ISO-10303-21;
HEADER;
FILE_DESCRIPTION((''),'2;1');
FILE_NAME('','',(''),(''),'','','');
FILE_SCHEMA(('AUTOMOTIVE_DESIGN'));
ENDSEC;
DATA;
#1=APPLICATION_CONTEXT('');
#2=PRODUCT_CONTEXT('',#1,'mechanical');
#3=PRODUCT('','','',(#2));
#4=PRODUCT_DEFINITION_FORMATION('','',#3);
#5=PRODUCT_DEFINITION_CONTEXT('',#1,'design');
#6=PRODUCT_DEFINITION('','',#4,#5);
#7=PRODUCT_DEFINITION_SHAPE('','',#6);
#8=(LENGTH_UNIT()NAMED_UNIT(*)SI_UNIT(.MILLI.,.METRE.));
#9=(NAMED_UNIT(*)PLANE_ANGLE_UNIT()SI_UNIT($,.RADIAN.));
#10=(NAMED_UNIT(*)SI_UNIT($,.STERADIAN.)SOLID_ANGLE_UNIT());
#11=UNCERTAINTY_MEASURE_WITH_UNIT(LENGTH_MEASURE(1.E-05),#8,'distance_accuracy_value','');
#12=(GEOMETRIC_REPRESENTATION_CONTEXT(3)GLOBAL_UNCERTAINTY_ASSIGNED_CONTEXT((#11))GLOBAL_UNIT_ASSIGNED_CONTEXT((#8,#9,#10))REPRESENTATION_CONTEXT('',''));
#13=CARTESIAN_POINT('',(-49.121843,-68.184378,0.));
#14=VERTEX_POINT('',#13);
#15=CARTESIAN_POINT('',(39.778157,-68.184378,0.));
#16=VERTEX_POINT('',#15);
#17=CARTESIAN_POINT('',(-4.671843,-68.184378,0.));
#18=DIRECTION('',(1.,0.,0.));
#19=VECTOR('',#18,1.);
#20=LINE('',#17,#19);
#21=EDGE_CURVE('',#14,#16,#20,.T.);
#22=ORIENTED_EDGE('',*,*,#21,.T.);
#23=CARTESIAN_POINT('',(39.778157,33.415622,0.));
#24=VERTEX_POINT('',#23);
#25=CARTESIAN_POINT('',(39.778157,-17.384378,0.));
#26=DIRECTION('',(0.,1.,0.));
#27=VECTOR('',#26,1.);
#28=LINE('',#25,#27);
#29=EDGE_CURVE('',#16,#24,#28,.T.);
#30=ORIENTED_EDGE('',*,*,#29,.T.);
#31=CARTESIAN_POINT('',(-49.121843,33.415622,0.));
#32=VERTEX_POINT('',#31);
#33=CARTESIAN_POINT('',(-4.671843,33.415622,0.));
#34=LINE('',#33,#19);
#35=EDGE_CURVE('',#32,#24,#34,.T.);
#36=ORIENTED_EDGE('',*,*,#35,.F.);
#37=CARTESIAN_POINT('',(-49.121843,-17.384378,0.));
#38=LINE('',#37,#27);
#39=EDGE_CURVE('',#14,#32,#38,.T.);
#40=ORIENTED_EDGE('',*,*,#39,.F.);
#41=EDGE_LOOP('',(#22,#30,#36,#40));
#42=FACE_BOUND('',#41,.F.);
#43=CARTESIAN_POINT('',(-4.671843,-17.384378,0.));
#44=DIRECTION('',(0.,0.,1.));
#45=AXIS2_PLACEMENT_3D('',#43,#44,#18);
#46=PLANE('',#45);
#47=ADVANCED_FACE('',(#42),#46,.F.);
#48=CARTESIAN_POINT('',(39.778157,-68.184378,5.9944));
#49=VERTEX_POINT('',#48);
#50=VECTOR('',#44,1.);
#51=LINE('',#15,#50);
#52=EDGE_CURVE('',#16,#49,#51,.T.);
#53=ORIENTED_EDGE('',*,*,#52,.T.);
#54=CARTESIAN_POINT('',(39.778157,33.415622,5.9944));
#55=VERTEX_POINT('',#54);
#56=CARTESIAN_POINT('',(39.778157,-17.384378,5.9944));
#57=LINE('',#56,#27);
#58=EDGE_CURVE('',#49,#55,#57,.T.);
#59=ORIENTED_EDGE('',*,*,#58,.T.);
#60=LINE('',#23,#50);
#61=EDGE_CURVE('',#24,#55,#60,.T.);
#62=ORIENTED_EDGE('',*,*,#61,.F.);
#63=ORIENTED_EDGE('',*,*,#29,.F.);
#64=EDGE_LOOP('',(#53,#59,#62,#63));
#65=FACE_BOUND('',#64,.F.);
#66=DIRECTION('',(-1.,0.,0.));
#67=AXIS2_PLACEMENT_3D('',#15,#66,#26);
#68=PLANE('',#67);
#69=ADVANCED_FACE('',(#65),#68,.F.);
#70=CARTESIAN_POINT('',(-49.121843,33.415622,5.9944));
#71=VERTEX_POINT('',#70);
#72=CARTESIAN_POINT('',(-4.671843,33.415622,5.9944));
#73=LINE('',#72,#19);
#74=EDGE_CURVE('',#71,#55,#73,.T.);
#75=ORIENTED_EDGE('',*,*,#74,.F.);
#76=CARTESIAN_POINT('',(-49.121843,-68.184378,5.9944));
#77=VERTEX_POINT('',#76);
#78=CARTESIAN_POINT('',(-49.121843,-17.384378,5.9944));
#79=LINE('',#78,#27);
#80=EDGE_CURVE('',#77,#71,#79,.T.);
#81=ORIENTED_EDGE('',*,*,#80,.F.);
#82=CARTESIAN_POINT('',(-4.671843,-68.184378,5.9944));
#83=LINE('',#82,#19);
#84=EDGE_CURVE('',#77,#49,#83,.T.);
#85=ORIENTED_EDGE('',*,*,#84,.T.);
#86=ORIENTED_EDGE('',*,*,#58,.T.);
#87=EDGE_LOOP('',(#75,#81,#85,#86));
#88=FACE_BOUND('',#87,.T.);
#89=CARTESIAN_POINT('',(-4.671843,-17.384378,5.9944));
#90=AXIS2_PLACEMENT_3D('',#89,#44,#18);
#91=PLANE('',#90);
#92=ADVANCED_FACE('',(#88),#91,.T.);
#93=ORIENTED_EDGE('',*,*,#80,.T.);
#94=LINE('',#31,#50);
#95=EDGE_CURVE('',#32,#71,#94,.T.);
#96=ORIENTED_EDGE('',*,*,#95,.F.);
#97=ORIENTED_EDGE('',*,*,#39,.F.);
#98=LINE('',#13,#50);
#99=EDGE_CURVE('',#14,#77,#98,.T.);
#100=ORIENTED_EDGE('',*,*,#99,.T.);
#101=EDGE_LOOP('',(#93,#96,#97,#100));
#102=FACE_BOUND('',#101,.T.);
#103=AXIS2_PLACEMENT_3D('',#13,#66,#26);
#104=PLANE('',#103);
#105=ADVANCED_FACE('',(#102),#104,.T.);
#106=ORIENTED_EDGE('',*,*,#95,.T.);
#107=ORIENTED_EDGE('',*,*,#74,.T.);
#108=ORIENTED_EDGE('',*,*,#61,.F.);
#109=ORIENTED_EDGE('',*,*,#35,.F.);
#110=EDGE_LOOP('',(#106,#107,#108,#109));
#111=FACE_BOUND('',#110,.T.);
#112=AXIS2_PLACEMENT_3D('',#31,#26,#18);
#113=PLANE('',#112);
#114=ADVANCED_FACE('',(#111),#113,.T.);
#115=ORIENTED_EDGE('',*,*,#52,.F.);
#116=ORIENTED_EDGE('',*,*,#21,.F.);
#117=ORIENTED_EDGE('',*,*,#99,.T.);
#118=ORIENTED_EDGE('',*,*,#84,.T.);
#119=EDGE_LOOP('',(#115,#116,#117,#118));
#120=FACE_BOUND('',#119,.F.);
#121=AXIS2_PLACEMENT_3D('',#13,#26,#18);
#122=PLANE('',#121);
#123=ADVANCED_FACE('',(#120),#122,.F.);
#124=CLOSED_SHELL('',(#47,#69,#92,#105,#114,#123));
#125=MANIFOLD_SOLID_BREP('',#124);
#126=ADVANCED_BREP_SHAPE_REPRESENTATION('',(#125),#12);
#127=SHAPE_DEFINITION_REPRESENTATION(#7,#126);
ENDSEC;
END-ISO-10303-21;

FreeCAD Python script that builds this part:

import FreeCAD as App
import Part
import Sketcher

V = App.Vector
Q = App.Units.Quantity


def add_polygon(sketch, points):
    """Adds a closed chain of lines whose ends are joined by coincident constraints."""
    first, n = sketch.GeometryCount, len(points)
    for a, b in zip(points, points[1:] + points[:1]):
        sketch.addGeometry(Part.LineSegment(App.Vector(*a, 0), App.Vector(*b, 0)), False)
    for i in range(n):
        sketch.addConstraint(Sketcher.Constraint("Coincident", first + i, 2, first + (i + 1) % n, 1))

doc = App.newDocument("Part")
params = doc.addObject("Spreadsheet::Sheet", "Params")
for row, (alias, value) in enumerate([
    ("sketch1_height", "4 in"),
    ("sketch1_width", "3.5 in"),
    ("pad1_length", "0.236 in"),
], start=1):
    params.set(f"A{row}", alias)
    params.set(f"B{row}", "=" + value)
    params.setAlias(f"B{row}", alias)

body = doc.addObject("PartDesign::Body", "Body")

sketch1 = body.newObject("Sketcher::SketchObject", "Sketch")
sketch1.AttachmentSupport = (doc.getObject("XY_Plane"), [""])
sketch1.MapMode = "FlatFace"
add_polygon(sketch1, [(-49, 33), (-49, -68), (40, -68), (40, 33)])
sketch1.addConstraint([
    Sketcher.Constraint("Vertical", 0),
    Sketcher.Constraint("Horizontal", 1),
    Sketcher.Constraint("Vertical", 2),
    Sketcher.Constraint("Horizontal", 3),
    Sketcher.Constraint("DistanceY", 0, 2, 0, 1, Q("4 in")),
    Sketcher.Constraint("DistanceX", 1, 1, 1, 2, Q("3.5 in")),
    Sketcher.Constraint("DistanceX", 0, 2, -1, 1, 49.121843),
    Sketcher.Constraint("DistanceY", 0, 2, -1, 1, 68.184378),
])
sketch1.setExpression("Constraints[8]", "Params.sketch1_height")
sketch1.setExpression("Constraints[9]", "Params.sketch1_width")
pad1 = body.newObject("PartDesign::Pad", "Pad")
pad1.Profile = sketch1
pad1.setExpression("Length", "Params.pad1_length")

doc.recompute()
